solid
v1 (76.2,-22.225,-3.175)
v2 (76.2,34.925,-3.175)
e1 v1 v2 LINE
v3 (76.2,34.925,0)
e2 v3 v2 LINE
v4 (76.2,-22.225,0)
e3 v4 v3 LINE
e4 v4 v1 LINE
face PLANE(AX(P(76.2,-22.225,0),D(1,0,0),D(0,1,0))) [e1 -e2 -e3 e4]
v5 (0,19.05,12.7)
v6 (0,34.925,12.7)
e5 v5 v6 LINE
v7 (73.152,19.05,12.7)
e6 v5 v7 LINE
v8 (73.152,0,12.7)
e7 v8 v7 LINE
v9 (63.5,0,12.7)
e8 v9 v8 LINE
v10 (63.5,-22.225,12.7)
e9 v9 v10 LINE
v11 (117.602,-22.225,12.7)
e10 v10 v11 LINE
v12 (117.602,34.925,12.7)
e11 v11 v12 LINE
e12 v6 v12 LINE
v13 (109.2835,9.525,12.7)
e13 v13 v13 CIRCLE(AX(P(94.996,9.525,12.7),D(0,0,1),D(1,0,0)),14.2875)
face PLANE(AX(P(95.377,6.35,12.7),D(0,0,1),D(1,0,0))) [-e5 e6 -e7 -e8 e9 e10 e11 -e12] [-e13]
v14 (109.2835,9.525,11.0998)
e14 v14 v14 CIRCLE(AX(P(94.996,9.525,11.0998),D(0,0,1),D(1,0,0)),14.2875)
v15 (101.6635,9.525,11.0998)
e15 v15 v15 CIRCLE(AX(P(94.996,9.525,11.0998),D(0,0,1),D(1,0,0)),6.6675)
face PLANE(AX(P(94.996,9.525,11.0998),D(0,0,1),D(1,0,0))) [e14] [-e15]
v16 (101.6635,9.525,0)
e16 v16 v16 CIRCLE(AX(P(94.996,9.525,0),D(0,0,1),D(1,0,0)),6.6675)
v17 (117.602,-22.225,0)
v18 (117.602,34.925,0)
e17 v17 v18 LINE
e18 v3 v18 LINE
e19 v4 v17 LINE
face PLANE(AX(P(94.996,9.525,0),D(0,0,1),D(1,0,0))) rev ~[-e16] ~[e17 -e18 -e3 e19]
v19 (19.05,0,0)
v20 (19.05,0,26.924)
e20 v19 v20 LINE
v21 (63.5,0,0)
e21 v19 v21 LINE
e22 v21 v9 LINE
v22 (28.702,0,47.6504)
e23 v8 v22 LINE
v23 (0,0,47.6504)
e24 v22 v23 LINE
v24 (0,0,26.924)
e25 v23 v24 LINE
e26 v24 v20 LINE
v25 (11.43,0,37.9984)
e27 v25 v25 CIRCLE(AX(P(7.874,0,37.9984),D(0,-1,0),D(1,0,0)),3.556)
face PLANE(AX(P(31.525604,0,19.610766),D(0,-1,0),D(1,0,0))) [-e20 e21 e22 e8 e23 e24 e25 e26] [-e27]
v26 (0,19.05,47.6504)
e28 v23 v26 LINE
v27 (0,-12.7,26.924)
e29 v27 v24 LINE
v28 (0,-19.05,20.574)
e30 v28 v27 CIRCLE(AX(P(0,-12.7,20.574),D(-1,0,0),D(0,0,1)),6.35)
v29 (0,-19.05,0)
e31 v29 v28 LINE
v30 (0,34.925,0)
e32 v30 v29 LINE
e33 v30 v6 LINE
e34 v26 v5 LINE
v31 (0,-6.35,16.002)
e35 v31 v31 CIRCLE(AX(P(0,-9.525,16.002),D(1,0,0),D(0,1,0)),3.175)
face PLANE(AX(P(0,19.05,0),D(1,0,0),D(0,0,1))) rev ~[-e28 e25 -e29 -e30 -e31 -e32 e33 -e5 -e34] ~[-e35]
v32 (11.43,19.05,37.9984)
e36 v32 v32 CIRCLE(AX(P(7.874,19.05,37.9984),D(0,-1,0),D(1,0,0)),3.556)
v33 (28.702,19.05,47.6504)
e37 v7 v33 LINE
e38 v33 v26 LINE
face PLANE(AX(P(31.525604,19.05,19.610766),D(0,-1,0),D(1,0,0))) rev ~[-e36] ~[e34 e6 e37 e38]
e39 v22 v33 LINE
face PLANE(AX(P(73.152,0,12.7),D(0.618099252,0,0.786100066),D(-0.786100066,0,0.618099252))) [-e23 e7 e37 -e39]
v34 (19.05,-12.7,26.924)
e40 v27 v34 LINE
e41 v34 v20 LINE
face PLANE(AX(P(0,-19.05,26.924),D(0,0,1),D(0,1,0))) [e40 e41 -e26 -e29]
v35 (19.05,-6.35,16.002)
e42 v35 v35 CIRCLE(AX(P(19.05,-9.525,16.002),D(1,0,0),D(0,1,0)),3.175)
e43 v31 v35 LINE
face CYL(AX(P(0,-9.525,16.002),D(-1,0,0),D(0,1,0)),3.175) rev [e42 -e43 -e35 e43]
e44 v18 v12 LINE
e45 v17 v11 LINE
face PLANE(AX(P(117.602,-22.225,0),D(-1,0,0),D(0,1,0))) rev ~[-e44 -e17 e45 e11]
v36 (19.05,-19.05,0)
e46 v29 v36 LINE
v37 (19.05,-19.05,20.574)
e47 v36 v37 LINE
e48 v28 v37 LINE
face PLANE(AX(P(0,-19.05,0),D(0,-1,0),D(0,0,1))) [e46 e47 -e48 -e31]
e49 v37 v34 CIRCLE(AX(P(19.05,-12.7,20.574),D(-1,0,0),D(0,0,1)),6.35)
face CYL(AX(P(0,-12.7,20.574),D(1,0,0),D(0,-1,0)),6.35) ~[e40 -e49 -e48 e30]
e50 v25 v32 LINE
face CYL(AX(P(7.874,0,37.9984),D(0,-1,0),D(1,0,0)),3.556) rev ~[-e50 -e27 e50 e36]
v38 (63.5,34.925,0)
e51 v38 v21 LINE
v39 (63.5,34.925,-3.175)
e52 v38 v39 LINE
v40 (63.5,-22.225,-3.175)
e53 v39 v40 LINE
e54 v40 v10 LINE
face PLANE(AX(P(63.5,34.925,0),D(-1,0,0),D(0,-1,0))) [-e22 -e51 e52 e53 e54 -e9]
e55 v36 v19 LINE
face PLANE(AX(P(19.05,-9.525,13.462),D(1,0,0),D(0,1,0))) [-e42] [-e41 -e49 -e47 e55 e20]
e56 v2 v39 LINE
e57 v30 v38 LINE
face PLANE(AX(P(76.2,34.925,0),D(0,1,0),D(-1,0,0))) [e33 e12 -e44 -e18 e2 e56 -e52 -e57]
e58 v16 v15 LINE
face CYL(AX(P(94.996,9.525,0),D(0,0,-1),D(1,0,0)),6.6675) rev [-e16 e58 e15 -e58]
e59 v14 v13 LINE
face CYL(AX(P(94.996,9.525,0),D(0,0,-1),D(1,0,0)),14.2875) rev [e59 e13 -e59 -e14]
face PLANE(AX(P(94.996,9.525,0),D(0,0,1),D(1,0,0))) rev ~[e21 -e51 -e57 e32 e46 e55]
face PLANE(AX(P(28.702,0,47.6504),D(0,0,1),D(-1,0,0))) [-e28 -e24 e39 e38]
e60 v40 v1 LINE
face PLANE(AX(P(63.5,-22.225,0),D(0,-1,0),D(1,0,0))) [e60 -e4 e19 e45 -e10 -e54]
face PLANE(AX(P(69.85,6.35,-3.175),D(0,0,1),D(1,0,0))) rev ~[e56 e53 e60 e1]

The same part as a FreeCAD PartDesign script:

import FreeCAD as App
import Part
import Sketcher

V = App.Vector
Q = App.Units.Quantity


def edges_at(feature, points):
    """Names of the edges that pass closest to the given points."""
    edges = feature.Shape.Edges
    near = lambda p: min(range(len(edges)), key=lambda i: edges[i].distToShape(Part.Vertex(*p))[0])
    return sorted({f"Edge{near(p) + 1}" for p in points})


def add_polygon(sketch, points):
    """Adds a closed chain of lines whose ends are joined by coincident constraints."""
    first, n = sketch.GeometryCount, len(points)
    for a, b in zip(points, points[1:] + points[:1]):
        sketch.addGeometry(Part.LineSegment(App.Vector(*a, 0), App.Vector(*b, 0)), False)
    for i in range(n):
        sketch.addConstraint(Sketcher.Constraint("Coincident", first + i, 2, first + (i + 1) % n, 1))

doc = App.newDocument("Part")
params = doc.addObject("Spreadsheet::Sheet", "Params")
for row, (alias, value) in enumerate([
    ("sketch1_diameter", "0.28 in"),
    ("sketch1_height", "0.5 in"),
    ("sketch1_width", "2.88 in"),
    ("sketch1_width2", "1.13 in"),
    ("sketch1_height2", "1.876 in"),
    ("pad1_length", "0.75 in"),
    ("sketch2_diameter", "0.25 in"),
    ("sketch2_width", "0.75 in"),
    ("sketch2_height", "1.06 in"),
    ("pad2_length", "0.75 in"),
    ("fillet_radius", "0.25 in"),
    ("sketch3_height", "0.5 in"),
    ("sketch3_width", "2.88 in"),
    ("pad3_length", "0.625 in"),
    ("sketch4_diameter", "1.125 in"),
    ("sketch4_width", "1.75 in"),
    ("sketch4_height", "2.25 in"),
    ("pad4_length", "0.5 in"),
    ("sketch5_diameter", "1.125 in"),
    ("sketch5_diameter2", "0.525 in"),
    ("pad5_length", "0.437 in"),
    ("sketch6_width", "0.5 in"),
    ("sketch6_height", "2.25 in"),
    ("pad6_length", "0.125 in"),
    ("sketch7_width", "0.5 in"),
    ("sketch7_height", "2.25 in"),
    ("pad7_length", "0.625 in"),
], start=1):
    params.set(f"A{row}", alias)
    params.set(f"B{row}", "=" + value)
    params.setAlias(f"B{row}", alias)

body = doc.addObject("PartDesign::Body", "Body")

sketch1 = body.newObject("Sketcher::SketchObject", "Sketch")
sketch1.AttachmentSupport = (doc.getObject("XZ_Plane"), [""])
sketch1.MapMode = "FlatFace"
add_polygon(sketch1, [(0, 47.7), (0, 0), (73.2, 0), (73.2, 12.7), (28.7, 47.7)])
sketch1.addGeometry(Part.Circle(V(7.9, 38, 0), V(0, 0, 1), 3.6), False)
sketch1.addConstraint([
    Sketcher.Constraint("Vertical", 0),
    Sketcher.Constraint("Horizontal", 1),
    Sketcher.Constraint("Vertical", 2),
    Sketcher.Constraint("Horizontal", 4),
    Sketcher.Constraint("Coincident", 0, 2, -1, 1),
    Sketcher.Constraint("Diameter", 5, Q("0.28 in")),
    Sketcher.Constraint("DistanceY", 2, 1, 2, 2, Q("0.5 in")),
    Sketcher.Constraint("DistanceX", 1, 1, 1, 2, Q("2.88 in")),
    Sketcher.Constraint("DistanceX", 4, 2, 4, 1, Q("1.13 in")),
    Sketcher.Constraint("DistanceY", 0, 2, 0, 1, Q("1.876 in")),
    Sketcher.Constraint("DistanceX", -1, 1, 5, 3, Q("0.31 in")),
    Sketcher.Constraint("DistanceY", 5, 3, 3, 2, Q("0.38 in")),
])
sketch1.setExpression("Constraints[10]", "Params.sketch1_diameter")
sketch1.setExpression("Constraints[11]", "Params.sketch1_height")
sketch1.setExpression("Constraints[12]", "Params.sketch1_width")
sketch1.setExpression("Constraints[13]", "Params.sketch1_width2")
sketch1.setExpression("Constraints[14]", "Params.sketch1_height2")
pad1 = body.newObject("PartDesign::Pad", "Pad")
pad1.Profile = sketch1
pad1.setExpression("Length", "Params.pad1_length")
pad1.Reversed = True

sketch2 = body.newObject("Sketcher::SketchObject", "Sketch001")
sketch2.AttachmentSupport = (doc.getObject("YZ_Plane"), [""])
sketch2.MapMode = "FlatFace"
add_polygon(sketch2, [(-19.1, 26.9), (-19.1, 0), (0, 0), (0, 26.9)])
sketch2.addGeometry(Part.Circle(V(-9.5, 16, 0), V(0, 0, 1), 3.2), False)
sketch2.addConstraint([
    Sketcher.Constraint("Vertical", 0),
    Sketcher.Constraint("Horizontal", 1),
    Sketcher.Constraint("Vertical", 2),
    Sketcher.Constraint("Horizontal", 3),
    Sketcher.Constraint("Coincident", 1, 2, -1, 1),
    Sketcher.Constraint("Diameter", 4, Q("0.25 in")),
    Sketcher.Constraint("DistanceX", 1, 1, 1, 2, Q("0.75 in")),
    Sketcher.Constraint("DistanceY", 0, 2, 0, 1, Q("1.06 in")),
    Sketcher.Constraint("DistanceY", -1, 1, 4, 3, Q("0.63 in")),
    Sketcher.Constraint("DistanceX", 4, 3, -1, 1, Q("0.375 in")),
])
sketch2.setExpression("Constraints[9]", "Params.sketch2_diameter")
sketch2.setExpression("Constraints[10]", "Params.sketch2_width")
sketch2.setExpression("Constraints[11]", "Params.sketch2_height")
pad2 = body.newObject("PartDesign::Pad", "Pad001")
pad2.Profile = sketch2
pad2.setExpression("Length", "Params.pad2_length")
doc.recompute()

fillet = body.newObject("PartDesign::Fillet", "Fillet")
fillet.Base = (pad2, edges_at(pad2, [(9.525, -19.05, 26.924)]))
fillet.setExpression("Radius", "Params.fillet_radius")

sketch3 = body.newObject("Sketcher::SketchObject", "Sketch002")
sketch3.AttachmentSupport = (doc.getObject("XZ_Plane"), [""])
sketch3.MapMode = "FlatFace"
sketch3.AttachmentOffset = App.Placement(V(0, 0, -0.75 * 25.4), App.Rotation())
add_polygon(sketch3, [(0, 13), (0, 0), (73, 0), (73, 13)])
sketch3.addConstraint([
    Sketcher.Constraint("Vertical", 0),
    Sketcher.Constraint("Horizontal", 1),
    Sketcher.Constraint("Vertical", 2),
    Sketcher.Constraint("Horizontal", 3),
    Sketcher.Constraint("Coincident", 0, 2, -1, 1),
    Sketcher.Constraint("DistanceY", 0, 2, 0, 1, Q("0.5 in")),
    Sketcher.Constraint("DistanceX", 1, 1, 1, 2, Q("2.88 in")),
])
sketch3.setExpression("Constraints[9]", "Params.sketch3_height")
sketch3.setExpression("Constraints[10]", "Params.sketch3_width")
pad3 = body.newObject("PartDesign::Pad", "Pad002")
pad3.Profile = sketch3
pad3.setExpression("Length", "Params.pad3_length")
pad3.Reversed = True

sketch4 = body.newObject("Sketcher::SketchObject", "Sketch003")
sketch4.AttachmentSupport = (doc.getObject("XY_Plane"), [""])
sketch4.MapMode = "FlatFace"
add_polygon(sketch4, [(73, 35), (73, -22), (118, -22), (118, 35)])
sketch4.addGeometry(Part.Circle(V(95, 10, 0), V(0, 0, 1), 14), False)
sketch4.addConstraint([
    Sketcher.Constraint("Vertical", 0),
    Sketcher.Constraint("Horizontal", 1),
    Sketcher.Constraint("Vertical", 2),
    Sketcher.Constraint("Horizontal", 3),
    Sketcher.Constraint("Diameter", 4, Q("1.125 in")),
    Sketcher.Constraint("DistanceY", 4, 3, 2, 2, Q("1 in")),
    Sketcher.Constraint("DistanceX", 1, 1, 1, 2, Q("1.75 in")),
    Sketcher.Constraint("DistanceY", 0, 2, 0, 1, Q("2.25 in")),
    Sketcher.Constraint("DistanceX", -1, 1, 4, 3, Q("3.74 in")),
    Sketcher.Constraint("DistanceX", -1, 1, 0, 2, Q("2.88 in")),
    Sketcher.Constraint("DistanceY", -1, 1, 4, 3, Q("0.375 in")),
])
sketch4.setExpression("Constraints[8]", "Params.sketch4_diameter")
sketch4.setExpression("Constraints[10]", "Params.sketch4_width")
sketch4.setExpression("Constraints[11]", "Params.sketch4_height")
pad4 = body.newObject("PartDesign::Pad", "Pad003")
pad4.Profile = sketch4
pad4.setExpression("Length", "Params.pad4_length")

sketch5 = body.newObject("Sketcher::SketchObject", "Sketch004")
sketch5.AttachmentSupport = (doc.getObject("XY_Plane"), [""])
sketch5.MapMode = "FlatFace"
sketch5.addGeometry([
    Part.Circle(V(95, 10, 0), V(0, 0, 1), 14),
    Part.Circle(V(95, 10, 0), V(0, 0, 1), 7),
], False)
sketch5.addConstraint([
    Sketcher.Constraint("Coincident", 1, 3, 0, 3),
    Sketcher.Constraint("Diameter", 0, Q("1.125 in")),
    Sketcher.Constraint("Diameter", 1, Q("0.525 in")),
    Sketcher.Constraint("DistanceX", -1, 1, 0, 3, Q("3.74 in")),
    Sketcher.Constraint("DistanceY", -1, 1, 0, 3, Q("0.375 in")),
])
sketch5.setExpression("Constraints[1]", "Params.sketch5_diameter")
sketch5.setExpression("Constraints[2]", "Params.sketch5_diameter2")
pad5 = body.newObject("PartDesign::Pad", "Pad004")
pad5.Profile = sketch5
pad5.setExpression("Length", "Params.pad5_length")

sketch6 = body.newObject("Sketcher::SketchObject", "Sketch005")
sketch6.AttachmentSupport = (doc.getObject("XY_Plane"), [""])
sketch6.MapMode = "FlatFace"
add_polygon(sketch6, [(76, 35), (64, 35), (64, -22), (76, -22)])
sketch6.addConstraint([
    Sketcher.Constraint("Horizontal", 0),
    Sketcher.Constraint("Vertical", 1),
    Sketcher.Constraint("Horizontal", 2),
    Sketcher.Constraint("Vertical", 3),
    Sketcher.Constraint("DistanceX", 0, 2, 0, 1, Q("0.5 in")),
    Sketcher.Constraint("DistanceX", -1, 1, 2, 2, Q("3 in")),
    Sketcher.Constraint("DistanceY", 1, 2, 1, 1, Q("2.25 in")),
    Sketcher.Constraint("DistanceY", -1, 1, 0, 2, Q("1.375 in")),
])
sketch6.setExpression("Constraints[8]", "Params.sketch6_width")
sketch6.setExpression("Constraints[10]", "Params.sketch6_height")
pad6 = body.newObject("PartDesign::Pad", "Pad005")
pad6.Profile = sketch6
pad6.setExpression("Length", "Params.pad6_length")
pad6.Reversed = True

sketch7 = body.newObject("Sketcher::SketchObject", "Sketch006")
sketch7.AttachmentSupport = (doc.getObject("XY_Plane"), [""])
sketch7.MapMode = "FlatFace"
sketch7.AttachmentOffset = App.Placement(V(0, 0, -0.125 * 25.4), App.Rotation())
add_polygon(sketch7, [(64, -22), (64, 35), (76, 35), (76, -22)])
sketch7.addConstraint([
    Sketcher.Constraint("Vertical", 0),
    Sketcher.Constraint("Horizontal", 1),
    Sketcher.Constraint("Vertical", 2),
    Sketcher.Constraint("Horizontal", 3),
    Sketcher.Constraint("DistanceX", 1, 1, 1, 2, Q("0.5 in")),
    Sketcher.Constraint("DistanceX", -1, 1, 1, 2, Q("3 in")),
    Sketcher.Constraint("DistanceY", 0, 1, 0, 2, Q("2.25 in")),
    Sketcher.Constraint("DistanceY", -1, 1, 0, 2, Q("1.375 in")),
])
sketch7.setExpression("Constraints[8]", "Params.sketch7_width")
sketch7.setExpression("Constraints[10]", "Params.sketch7_height")
pad7 = body.newObject("PartDesign::Pad", "Pad006")
pad7.Profile = sketch7
pad7.setExpression("Length", "Params.pad7_length")

doc.recompute()
